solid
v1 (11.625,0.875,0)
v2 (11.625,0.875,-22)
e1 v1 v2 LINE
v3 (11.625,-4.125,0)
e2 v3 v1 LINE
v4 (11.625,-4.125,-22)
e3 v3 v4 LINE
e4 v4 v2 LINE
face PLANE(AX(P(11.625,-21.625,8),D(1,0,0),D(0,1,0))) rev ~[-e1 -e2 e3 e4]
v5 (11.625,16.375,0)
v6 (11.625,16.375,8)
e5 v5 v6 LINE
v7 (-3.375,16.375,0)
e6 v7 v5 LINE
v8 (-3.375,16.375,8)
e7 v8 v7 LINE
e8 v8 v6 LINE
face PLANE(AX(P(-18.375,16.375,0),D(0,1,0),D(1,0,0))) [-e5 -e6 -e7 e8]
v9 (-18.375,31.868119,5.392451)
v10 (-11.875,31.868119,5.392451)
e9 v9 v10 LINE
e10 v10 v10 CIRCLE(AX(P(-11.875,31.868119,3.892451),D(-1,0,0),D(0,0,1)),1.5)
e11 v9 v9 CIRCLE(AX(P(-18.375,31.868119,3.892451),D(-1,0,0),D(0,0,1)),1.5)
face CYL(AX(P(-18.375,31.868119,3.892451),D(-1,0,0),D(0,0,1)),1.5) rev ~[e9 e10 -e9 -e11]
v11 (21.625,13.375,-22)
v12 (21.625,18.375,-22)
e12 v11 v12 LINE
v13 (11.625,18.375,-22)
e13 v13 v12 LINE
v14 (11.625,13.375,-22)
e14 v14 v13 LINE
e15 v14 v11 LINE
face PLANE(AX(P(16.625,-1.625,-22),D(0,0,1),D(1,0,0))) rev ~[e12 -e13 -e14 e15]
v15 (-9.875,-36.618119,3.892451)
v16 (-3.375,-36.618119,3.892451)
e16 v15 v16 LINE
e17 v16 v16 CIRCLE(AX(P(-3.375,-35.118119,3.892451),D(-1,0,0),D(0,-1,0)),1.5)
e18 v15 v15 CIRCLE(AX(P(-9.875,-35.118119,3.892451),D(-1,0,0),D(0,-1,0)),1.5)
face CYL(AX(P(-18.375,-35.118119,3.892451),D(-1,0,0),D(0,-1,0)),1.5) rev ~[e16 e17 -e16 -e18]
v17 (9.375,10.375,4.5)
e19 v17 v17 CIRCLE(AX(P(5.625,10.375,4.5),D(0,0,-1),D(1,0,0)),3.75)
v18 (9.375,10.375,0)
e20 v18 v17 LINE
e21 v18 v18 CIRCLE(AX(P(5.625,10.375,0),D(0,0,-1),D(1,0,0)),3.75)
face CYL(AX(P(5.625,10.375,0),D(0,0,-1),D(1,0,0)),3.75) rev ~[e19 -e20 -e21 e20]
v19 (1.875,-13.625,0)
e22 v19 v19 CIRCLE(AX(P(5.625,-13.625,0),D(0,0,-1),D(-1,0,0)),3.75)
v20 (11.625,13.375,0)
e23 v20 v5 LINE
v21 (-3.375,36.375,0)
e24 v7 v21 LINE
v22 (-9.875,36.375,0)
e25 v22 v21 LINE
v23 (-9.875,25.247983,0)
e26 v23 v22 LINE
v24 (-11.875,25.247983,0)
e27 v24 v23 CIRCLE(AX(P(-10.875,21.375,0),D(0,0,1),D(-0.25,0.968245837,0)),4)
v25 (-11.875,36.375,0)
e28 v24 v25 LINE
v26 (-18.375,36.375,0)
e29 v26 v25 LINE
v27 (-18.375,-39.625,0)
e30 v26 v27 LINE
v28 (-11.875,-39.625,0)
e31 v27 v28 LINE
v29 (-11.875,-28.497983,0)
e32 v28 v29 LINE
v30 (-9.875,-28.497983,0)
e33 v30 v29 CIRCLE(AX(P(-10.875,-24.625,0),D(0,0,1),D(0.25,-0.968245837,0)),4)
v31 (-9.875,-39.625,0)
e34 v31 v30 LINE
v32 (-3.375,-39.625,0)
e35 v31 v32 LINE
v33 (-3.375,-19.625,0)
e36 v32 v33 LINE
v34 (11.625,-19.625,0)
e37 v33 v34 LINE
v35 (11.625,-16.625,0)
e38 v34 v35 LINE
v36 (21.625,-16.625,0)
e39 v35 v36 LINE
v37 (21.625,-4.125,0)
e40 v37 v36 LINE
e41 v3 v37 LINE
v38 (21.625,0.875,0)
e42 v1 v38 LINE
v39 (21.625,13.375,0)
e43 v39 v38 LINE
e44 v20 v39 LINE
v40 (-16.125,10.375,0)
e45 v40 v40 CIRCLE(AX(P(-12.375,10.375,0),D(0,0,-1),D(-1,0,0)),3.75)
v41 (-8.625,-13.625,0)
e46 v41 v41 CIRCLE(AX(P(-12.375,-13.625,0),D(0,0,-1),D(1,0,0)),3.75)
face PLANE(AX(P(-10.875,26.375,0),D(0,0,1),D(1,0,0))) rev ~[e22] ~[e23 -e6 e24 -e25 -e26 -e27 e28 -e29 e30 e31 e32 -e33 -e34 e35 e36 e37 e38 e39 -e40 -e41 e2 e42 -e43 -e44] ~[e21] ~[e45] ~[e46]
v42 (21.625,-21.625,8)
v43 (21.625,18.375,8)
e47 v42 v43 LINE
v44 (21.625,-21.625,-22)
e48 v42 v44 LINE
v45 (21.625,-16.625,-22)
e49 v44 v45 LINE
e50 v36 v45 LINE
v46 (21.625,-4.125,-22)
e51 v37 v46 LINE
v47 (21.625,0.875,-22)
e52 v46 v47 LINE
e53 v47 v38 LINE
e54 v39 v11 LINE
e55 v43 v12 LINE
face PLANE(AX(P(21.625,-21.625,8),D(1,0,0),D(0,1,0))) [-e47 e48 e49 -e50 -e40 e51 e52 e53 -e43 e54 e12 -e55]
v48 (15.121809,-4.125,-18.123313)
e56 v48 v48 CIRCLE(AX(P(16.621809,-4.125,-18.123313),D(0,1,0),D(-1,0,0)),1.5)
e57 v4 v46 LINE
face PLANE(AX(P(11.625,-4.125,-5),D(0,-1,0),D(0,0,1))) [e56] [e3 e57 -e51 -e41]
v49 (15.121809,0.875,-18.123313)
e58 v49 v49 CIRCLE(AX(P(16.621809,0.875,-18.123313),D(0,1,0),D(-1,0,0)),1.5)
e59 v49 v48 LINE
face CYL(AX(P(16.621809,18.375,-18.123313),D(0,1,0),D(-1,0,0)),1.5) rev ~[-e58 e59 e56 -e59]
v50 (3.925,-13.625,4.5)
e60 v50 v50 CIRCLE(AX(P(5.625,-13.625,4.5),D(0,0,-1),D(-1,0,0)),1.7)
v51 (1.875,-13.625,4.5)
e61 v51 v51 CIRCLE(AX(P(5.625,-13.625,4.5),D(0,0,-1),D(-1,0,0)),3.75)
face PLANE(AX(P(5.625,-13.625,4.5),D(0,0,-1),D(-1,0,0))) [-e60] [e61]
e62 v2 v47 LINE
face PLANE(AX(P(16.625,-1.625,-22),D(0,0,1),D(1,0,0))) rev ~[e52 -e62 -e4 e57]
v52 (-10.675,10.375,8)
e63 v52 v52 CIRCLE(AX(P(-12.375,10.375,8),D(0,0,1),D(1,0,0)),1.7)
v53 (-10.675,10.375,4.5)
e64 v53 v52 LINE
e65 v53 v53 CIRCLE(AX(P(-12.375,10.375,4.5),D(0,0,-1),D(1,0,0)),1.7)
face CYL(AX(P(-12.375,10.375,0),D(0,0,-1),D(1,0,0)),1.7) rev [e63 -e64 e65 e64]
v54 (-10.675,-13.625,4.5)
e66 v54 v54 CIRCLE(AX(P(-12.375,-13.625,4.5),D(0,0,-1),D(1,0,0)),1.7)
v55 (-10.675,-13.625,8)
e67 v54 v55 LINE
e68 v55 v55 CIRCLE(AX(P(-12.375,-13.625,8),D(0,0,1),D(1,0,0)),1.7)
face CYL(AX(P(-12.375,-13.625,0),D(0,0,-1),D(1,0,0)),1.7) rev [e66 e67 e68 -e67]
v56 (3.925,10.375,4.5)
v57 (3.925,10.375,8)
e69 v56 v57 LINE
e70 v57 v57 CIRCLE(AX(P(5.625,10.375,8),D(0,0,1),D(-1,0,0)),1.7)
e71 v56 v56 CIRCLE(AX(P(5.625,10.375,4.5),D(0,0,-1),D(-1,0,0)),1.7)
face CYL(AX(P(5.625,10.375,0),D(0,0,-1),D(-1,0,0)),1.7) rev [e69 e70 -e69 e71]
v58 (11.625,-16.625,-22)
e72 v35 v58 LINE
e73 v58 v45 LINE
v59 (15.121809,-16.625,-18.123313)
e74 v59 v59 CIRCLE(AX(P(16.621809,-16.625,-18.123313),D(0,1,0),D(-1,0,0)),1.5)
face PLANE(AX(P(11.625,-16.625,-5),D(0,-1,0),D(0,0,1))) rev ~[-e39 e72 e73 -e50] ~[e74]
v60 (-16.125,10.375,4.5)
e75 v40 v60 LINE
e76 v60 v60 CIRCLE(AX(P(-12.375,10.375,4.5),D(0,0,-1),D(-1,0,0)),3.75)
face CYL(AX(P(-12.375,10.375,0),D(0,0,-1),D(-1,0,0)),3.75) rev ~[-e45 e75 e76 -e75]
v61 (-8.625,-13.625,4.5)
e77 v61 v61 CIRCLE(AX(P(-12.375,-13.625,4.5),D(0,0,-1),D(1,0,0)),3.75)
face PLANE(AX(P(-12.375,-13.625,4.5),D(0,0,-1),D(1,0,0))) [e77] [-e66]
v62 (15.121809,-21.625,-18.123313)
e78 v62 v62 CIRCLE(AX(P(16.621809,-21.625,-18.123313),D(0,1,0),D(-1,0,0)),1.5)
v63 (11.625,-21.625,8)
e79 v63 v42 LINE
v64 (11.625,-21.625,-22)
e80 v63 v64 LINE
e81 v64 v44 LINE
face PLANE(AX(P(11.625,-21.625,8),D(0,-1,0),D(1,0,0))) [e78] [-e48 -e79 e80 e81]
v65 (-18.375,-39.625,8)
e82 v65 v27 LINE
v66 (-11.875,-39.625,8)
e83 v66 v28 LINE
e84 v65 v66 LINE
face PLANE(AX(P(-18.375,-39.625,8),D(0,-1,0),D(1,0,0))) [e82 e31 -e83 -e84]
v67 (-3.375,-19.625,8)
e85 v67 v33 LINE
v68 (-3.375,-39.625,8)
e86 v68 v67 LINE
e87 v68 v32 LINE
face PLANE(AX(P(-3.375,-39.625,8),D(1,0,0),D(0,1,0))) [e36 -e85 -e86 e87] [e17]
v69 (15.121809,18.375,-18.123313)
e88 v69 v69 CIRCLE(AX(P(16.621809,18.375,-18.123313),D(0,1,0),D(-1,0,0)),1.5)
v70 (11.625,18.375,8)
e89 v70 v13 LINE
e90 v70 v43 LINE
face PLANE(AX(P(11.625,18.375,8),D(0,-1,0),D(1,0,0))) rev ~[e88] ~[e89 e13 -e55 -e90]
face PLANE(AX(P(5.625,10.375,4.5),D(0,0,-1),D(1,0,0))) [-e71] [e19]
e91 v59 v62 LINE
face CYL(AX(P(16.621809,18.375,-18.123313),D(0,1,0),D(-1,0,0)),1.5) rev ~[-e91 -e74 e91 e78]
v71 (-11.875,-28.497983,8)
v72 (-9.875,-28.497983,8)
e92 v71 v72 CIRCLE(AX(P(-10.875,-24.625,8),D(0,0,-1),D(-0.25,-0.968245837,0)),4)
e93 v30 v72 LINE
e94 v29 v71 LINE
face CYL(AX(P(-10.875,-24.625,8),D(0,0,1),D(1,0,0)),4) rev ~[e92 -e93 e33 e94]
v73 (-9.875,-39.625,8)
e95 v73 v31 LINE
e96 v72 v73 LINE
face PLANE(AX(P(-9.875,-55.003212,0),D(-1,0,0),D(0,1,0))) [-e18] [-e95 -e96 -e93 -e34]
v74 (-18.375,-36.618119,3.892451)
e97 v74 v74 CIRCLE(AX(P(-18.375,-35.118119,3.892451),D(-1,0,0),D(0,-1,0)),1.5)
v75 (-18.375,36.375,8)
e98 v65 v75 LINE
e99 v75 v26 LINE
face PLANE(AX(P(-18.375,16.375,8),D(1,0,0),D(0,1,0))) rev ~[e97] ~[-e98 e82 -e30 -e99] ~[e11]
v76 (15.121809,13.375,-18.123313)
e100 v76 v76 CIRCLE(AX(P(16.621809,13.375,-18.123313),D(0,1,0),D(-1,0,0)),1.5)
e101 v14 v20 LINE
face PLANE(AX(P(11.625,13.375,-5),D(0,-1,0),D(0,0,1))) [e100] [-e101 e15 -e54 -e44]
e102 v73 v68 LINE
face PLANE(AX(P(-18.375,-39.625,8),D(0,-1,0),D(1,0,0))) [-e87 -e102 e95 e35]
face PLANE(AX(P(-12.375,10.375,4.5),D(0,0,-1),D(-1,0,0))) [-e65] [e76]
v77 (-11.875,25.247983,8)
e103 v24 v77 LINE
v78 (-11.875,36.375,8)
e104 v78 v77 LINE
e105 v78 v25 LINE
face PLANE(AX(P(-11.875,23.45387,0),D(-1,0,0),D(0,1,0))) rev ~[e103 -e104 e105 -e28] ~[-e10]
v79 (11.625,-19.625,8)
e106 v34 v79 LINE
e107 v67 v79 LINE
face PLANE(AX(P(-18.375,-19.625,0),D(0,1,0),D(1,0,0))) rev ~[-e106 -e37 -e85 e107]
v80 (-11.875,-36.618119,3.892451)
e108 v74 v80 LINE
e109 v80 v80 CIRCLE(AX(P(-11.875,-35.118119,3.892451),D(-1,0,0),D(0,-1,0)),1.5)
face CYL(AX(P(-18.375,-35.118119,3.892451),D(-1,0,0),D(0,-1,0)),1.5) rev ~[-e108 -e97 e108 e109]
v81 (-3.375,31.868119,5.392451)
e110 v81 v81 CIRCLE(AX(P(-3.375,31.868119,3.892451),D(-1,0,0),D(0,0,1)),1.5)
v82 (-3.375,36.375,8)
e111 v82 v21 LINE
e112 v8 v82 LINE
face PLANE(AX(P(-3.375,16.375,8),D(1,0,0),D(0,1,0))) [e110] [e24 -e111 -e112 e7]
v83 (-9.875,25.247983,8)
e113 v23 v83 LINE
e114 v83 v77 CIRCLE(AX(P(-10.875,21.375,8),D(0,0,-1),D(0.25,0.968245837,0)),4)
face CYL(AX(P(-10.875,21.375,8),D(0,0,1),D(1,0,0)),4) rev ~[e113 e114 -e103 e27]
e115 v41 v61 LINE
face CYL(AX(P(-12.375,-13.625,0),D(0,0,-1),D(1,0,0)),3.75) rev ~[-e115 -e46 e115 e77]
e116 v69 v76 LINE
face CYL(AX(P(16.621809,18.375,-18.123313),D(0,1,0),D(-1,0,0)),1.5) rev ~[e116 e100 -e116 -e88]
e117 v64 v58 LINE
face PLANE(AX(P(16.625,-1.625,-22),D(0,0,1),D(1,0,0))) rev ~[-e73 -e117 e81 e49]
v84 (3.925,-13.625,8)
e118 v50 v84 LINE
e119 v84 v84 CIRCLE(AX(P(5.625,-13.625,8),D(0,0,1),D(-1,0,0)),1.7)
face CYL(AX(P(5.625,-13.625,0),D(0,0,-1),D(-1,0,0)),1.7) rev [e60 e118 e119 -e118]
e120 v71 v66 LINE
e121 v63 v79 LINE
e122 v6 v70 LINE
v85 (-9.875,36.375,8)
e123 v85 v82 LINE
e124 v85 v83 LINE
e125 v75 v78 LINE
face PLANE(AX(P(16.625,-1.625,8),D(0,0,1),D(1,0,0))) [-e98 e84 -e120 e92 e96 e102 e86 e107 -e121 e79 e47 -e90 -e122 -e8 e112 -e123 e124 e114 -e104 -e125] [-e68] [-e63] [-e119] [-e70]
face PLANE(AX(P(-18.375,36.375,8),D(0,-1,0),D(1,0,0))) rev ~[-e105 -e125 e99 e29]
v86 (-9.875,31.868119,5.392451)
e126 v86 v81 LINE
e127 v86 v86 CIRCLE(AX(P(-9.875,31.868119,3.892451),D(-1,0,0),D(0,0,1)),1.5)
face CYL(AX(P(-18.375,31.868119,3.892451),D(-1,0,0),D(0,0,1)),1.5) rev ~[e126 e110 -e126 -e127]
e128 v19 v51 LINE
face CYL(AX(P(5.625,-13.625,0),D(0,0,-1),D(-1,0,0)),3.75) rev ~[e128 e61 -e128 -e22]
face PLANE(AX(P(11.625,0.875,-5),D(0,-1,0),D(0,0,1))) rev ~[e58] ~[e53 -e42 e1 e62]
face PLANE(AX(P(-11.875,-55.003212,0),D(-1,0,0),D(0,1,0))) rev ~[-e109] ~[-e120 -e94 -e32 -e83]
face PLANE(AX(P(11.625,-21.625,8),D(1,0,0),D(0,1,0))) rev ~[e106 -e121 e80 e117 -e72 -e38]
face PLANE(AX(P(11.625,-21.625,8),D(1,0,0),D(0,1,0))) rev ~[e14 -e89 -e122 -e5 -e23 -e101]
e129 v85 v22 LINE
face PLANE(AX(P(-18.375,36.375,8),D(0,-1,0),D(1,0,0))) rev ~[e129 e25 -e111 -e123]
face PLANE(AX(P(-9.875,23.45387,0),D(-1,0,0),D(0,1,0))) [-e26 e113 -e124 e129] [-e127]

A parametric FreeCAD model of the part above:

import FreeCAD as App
import Part
import Sketcher

doc = App.newDocument("Part")
body = doc.addObject("PartDesign::Body", "Body")

# Sketch on XY plane
sketch1 = doc.addObject("Sketcher::SketchObject", "Sketch")
body.addObject(sketch1)
sketch1.AttachmentSupport = (doc.XY_Plane, [""])
sketch1.MapMode = "FlatFace"
sketch1.addGeometry(Part.LineSegment(App.Vector(-18.4, 16.4, 0), App.Vector(-18.4, -19.6, 0)), False)
sketch1.addGeometry(Part.LineSegment(App.Vector(-18.4, -19.6, 0), App.Vector(11.6, -19.6, 0)), False)
sketch1.addGeometry(Part.LineSegment(App.Vector(11.6, -19.6, 0), App.Vector(11.6, 16.4, 0)), False)
sketch1.addGeometry(Part.LineSegment(App.Vector(11.6, 16.4, 0), App.Vector(-18.4, 16.4, 0)), False)
sketch1.addGeometry(Part.Circle(App.Vector(-12.4, -13.6, 0), App.Vector(0, 0, 1), 1.7), False)
sketch1.addGeometry(Part.Circle(App.Vector(5.6, -13.6, 0), App.Vector(0, 0, 1), 1.7), False)
sketch1.addGeometry(Part.Circle(App.Vector(-12.4, 10.4, 0), App.Vector(0, 0, 1), 1.7), False)
sketch1.addGeometry(Part.Circle(App.Vector(5.6, 10.4, 0), App.Vector(0, 0, 1), 1.7), False)
sketch1.addConstraint(Sketcher.Constraint("Coincident", 0, 2, 1, 1))
sketch1.addConstraint(Sketcher.Constraint("Coincident", 1, 2, 2, 1))
sketch1.addConstraint(Sketcher.Constraint("Coincident", 2, 2, 3, 1))
sketch1.addConstraint(Sketcher.Constraint("Coincident", 3, 2, 0, 1))
sketch1.addConstraint(Sketcher.Constraint("Vertical", 0))
sketch1.addConstraint(Sketcher.Constraint("Horizontal", 1))
sketch1.addConstraint(Sketcher.Constraint("Vertical", 2))
sketch1.addConstraint(Sketcher.Constraint("Horizontal", 3))
sketch1.addConstraint(Sketcher.Constraint("Equal", 4, 5))
sketch1.addConstraint(Sketcher.Constraint("Equal", 5, 6))
sketch1.addConstraint(Sketcher.Constraint("Equal", 6, 7))
sketch1.addConstraint(Sketcher.Constraint("Horizontal", 4, 3, 5, 3))
sketch1.addConstraint(Sketcher.Constraint("Horizontal", 6, 3, 7, 3))
sketch1.addConstraint(Sketcher.Constraint("Vertical", 4, 3, 6, 3))
sketch1.addConstraint(Sketcher.Constraint("Vertical", 5, 3, 7, 3))
sketch1.addConstraint(Sketcher.Constraint("Diameter", 4, 3.4))
sketch1.addConstraint(Sketcher.Constraint("DistanceX", 1, 1, 1, 2, 30.0))
sketch1.addConstraint(Sketcher.Constraint("DistanceY", 0, 2, 0, 1, 36.0))
sketch1.addConstraint(Sketcher.Constraint("DistanceX", 4, 3, 5, 3, 18.0))
sketch1.addConstraint(Sketcher.Constraint("DistanceY", 4, 3, 6, 3, 24.0))
sketch1.addConstraint(Sketcher.Constraint("DistanceX", 0, 2, 4, 3, 6.0))
sketch1.addConstraint(Sketcher.Constraint("DistanceY", 0, 2, 4, 3, 6.0))
sketch1.addConstraint(Sketcher.Constraint("DistanceX", 4, 3, -1, 1, 12.375))
sketch1.addConstraint(Sketcher.Constraint("DistanceY", 4, 3, -1, 1, 13.625))
pad1 = doc.addObject("PartDesign::Pad", "Pad")
body.addObject(pad1)
pad1.Profile = sketch1
pad1.Length = 8

# Sketch on XY plane
sketch2 = doc.addObject("Sketcher::SketchObject", "Sketch001")
body.addObject(sketch2)
sketch2.AttachmentSupport = (doc.XY_Plane, [""])
sketch2.MapMode = "FlatFace"
sketch2.addGeometry(Part.Circle(App.Vector(-12.4, 10.4, 0), App.Vector(0, 0, 1), 3.8), False)
sketch2.addGeometry(Part.Circle(App.Vector(5.6, 10.4, 0), App.Vector(0, 0, 1), 3.8), False)
sketch2.addGeometry(Part.Circle(App.Vector(-12.4, -13.6, 0), App.Vector(0, 0, 1), 3.8), False)
sketch2.addGeometry(Part.Circle(App.Vector(5.6, -13.6, 0), App.Vector(0, 0, 1), 3.8), False)
sketch2.addConstraint(Sketcher.Constraint("Equal", 0, 1))
sketch2.addConstraint(Sketcher.Constraint("Equal", 1, 2))
sketch2.addConstraint(Sketcher.Constraint("Equal", 2, 3))
sketch2.addConstraint(Sketcher.Constraint("Horizontal", 0, 3, 1, 3))
sketch2.addConstraint(Sketcher.Constraint("Horizontal", 2, 3, 3, 3))
sketch2.addConstraint(Sketcher.Constraint("Vertical", 0, 3, 2, 3))
sketch2.addConstraint(Sketcher.Constraint("Vertical", 1, 3, 3, 3))
sketch2.addConstraint(Sketcher.Constraint("Diameter", 0, 7.5))
sketch2.addConstraint(Sketcher.Constraint("DistanceX", 0, 3, 1, 3, 18.0))
sketch2.addConstraint(Sketcher.Constraint("DistanceY", 2, 3, 0, 3, 24.0))
sketch2.addConstraint(Sketcher.Constraint("DistanceX", 0, 3, -1, 1, 12.375))
sketch2.addConstraint(Sketcher.Constraint("DistanceY", -1, 1, 0, 3, 10.375))
pocket1 = doc.addObject("PartDesign::Pocket", "Pocket")
body.addObject(pocket1)
pocket1.Profile = sketch2
pocket1.Length = 4.5
pocket1.Reversed = True

# Sketch on XY plane
sketch3 = doc.addObject("Sketcher::SketchObject", "Sketch002")
body.addObject(sketch3)
sketch3.AttachmentSupport = (doc.XY_Plane, [""])
sketch3.MapMode = "FlatFace"
sketch3.AttachmentOffset = App.Placement(App.Vector(0, 0, 8), App.Rotation())
sketch3.addGeometry(Part.LineSegment(App.Vector(-18.4, 36.4, 0), App.Vector(-18.4, 16.4, 0)), False)
sketch3.addGeometry(Part.LineSegment(App.Vector(-18.4, 16.4, 0), App.Vector(-3.4, 16.4, 0)), False)
sketch3.addGeometry(Part.LineSegment(App.Vector(-3.4, 16.4, 0), App.Vector(-3.4, 36.4, 0)), False)
sketch3.addGeometry(Part.LineSegment(App.Vector(-3.4, 36.4, 0), App.Vector(-18.4, 36.4, 0)), False)
sketch3.addGeometry(Part.Circle(App.Vector(-10.9, 21.4, 0), App.Vector(0, 0, 1), 4), False)
sketch3.addGeometry(Part.LineSegment(App.Vector(-18.4, -19.6, 0), App.Vector(-18.4, -39.6, 0)), False)
sketch3.addGeometry(Part.LineSegment(App.Vector(-18.4, -39.6, 0), App.Vector(-3.4, -39.6, 0)), False)
sketch3.addGeometry(Part.LineSegment(App.Vector(-3.4, -39.6, 0), App.Vector(-3.4, -19.6, 0)), False)
sketch3.addGeometry(Part.LineSegment(App.Vector(-3.4, -19.6, 0), App.Vector(-18.4, -19.6, 0)), False)
sketch3.addGeometry(Part.Circle(App.Vector(-10.9, -24.6, 0), App.Vector(0, 0, 1), 4), False)
sketch3.addConstraint(Sketcher.Constraint("Coincident", 0, 2, 1, 1))
sketch3.addConstraint(Sketcher.Constraint("Coincident", 1, 2, 2, 1))
sketch3.addConstraint(Sketcher.Constraint("Coincident", 2, 2, 3, 1))
sketch3.addConstraint(Sketcher.Constraint("Coincident", 3, 2, 0, 1))
sketch3.addConstraint(Sketcher.Constraint("Coincident", 5, 2, 6, 1))
sketch3.addConstraint(Sketcher.Constraint("Coincident", 6, 2, 7, 1))
sketch3.addConstraint(Sketcher.Constraint("Coincident", 7, 2, 8, 1))
sketch3.addConstraint(Sketcher.Constraint("Coincident", 8, 2, 5, 1))
sketch3.addConstraint(Sketcher.Constraint("Vertical", 0))
sketch3.addConstraint(Sketcher.Constraint("Horizontal", 1))
sketch3.addConstraint(Sketcher.Constraint("Vertical", 2))
sketch3.addConstraint(Sketcher.Constraint("Horizontal", 3))
sketch3.addConstraint(Sketcher.Constraint("Vertical", 5))
sketch3.addConstraint(Sketcher.Constraint("Horizontal", 6))
sketch3.addConstraint(Sketcher.Constraint("Vertical", 7))
sketch3.addConstraint(Sketcher.Constraint("Horizontal", 8))
sketch3.addConstraint(Sketcher.Constraint("Equal", 4, 9))
sketch3.addConstraint(Sketcher.Constraint("Vertical", 4, 3, 9, 3))
sketch3.addConstraint(Sketcher.Constraint("Vertical", 3, 2, 5, 2))
sketch3.addConstraint(Sketcher.Constraint("Vertical", 2, 2, 6, 2))
sketch3.addConstraint(Sketcher.Constraint("Equal", 2, 5))
sketch3.addConstraint(Sketcher.Constraint("Diameter", 4, 8.0))
sketch3.addConstraint(Sketcher.Constraint("DistanceX", 1, 1, 1, 2, 15.0))
sketch3.addConstraint(Sketcher.Constraint("DistanceY", 0, 2, 0, 1, 20.0))
sketch3.addConstraint(Sketcher.Constraint("DistanceY", 9, 3, 4, 3, 46.0))
sketch3.addConstraint(Sketcher.Constraint("DistanceY", 0, 2, 4, 3, 5.0))
sketch3.addConstraint(Sketcher.Constraint("DistanceY", 5, 2, 9, 3, 15.0))
sketch3.addConstraint(Sketcher.Constraint("DistanceX", 0, 2, 4, 3, 7.5))
sketch3.addConstraint(Sketcher.Constraint("DistanceX", 4, 3, -1, 1, 10.875))
sketch3.addConstraint(Sketcher.Constraint("DistanceY", -1, 1, 4, 3, 21.375))
pad2 = doc.addObject("PartDesign::Pad", "Pad001")
body.addObject(pad2)
pad2.Profile = sketch3
pad2.Length = 8
pad2.Reversed = True

# Sketch on XY plane
sketch4 = doc.addObject("Sketcher::SketchObject", "Sketch003")
body.addObject(sketch4)
sketch4.AttachmentSupport = (doc.XY_Plane, [""])
sketch4.MapMode = "FlatFace"
sketch4.AttachmentOffset = App.Placement(App.Vector(0, 0, 8), App.Rotation())
sketch4.addGeometry(Part.LineSegment(App.Vector(12, 18, 0), App.Vector(12, -22, 0)), False)
sketch4.addGeometry(Part.LineSegment(App.Vector(12, -22, 0), App.Vector(22, -22, 0)), False)
sketch4.addGeometry(Part.LineSegment(App.Vector(22, -22, 0), App.Vector(22, 18, 0)), False)
sketch4.addGeometry(Part.LineSegment(App.Vector(22, 18, 0), App.Vector(12, 18, 0)), False)
sketch4.addConstraint(Sketcher.Constraint("Coincident", 0, 2, 1, 1))
sketch4.addConstraint(Sketcher.Constraint("Coincident", 1, 2, 2, 1))
sketch4.addConstraint(Sketcher.Constraint("Coincident", 2, 2, 3, 1))
sketch4.addConstraint(Sketcher.Constraint("Coincident", 3, 2, 0, 1))
sketch4.addConstraint(Sketcher.Constraint("Vertical", 0))
sketch4.addConstraint(Sketcher.Constraint("Horizontal", 1))
sketch4.addConstraint(Sketcher.Constraint("Vertical", 2))
sketch4.addConstraint(Sketcher.Constraint("Horizontal", 3))
sketch4.addConstraint(Sketcher.Constraint("DistanceX", 1, 1, 1, 2, 10.0))
sketch4.addConstraint(Sketcher.Constraint("DistanceY", 0, 2, 0, 1, 40.0))
sketch4.addConstraint(Sketcher.Constraint("DistanceX", -1, 1, 0, 2, 11.625))
sketch4.addConstraint(Sketcher.Constraint("DistanceY", 0, 2, -1, 1, 21.625))
pad3 = doc.addObject("PartDesign::Pad", "Pad002")
body.addObject(pad3)
pad3.Profile = sketch4
pad3.Length = 30
pad3.Reversed = True

# Sketch on YZ plane
sketch5 = doc.addObject("Sketcher::SketchObject", "Sketch004")
body.addObject(sketch5)
sketch5.AttachmentSupport = (doc.YZ_Plane, [""])
sketch5.MapMode = "FlatFace"
sketch5.AttachmentOffset = App.Placement(App.Vector(0, 0, 11.625), App.Rotation())
sketch5.addGeometry(Part.LineSegment(App.Vector(13, -22, 0), App.Vector(1, -22, 0)), False)
sketch5.addGeometry(Part.LineSegment(App.Vector(1, -22, 0), App.Vector(1, -10, 0)), False)
sketch5.addGeometry(Part.LineSegment(App.Vector(1, -10, 0), App.Vector(13, -10, 0)), False)
sketch5.addGeometry(Part.LineSegment(App.Vector(13, -10, 0), App.Vector(13, -22, 0)), False)
sketch5.addGeometry(Part.LineSegment(App.Vector(13, -5, 0), App.Vector(1, -5, 0)), False)
sketch5.addGeometry(Part.LineSegment(App.Vector(1, -5, 0), App.Vector(1, 0, 0)), False)
sketch5.addGeometry(Part.LineSegment(App.Vector(1, 0, 0), App.Vector(13, 0, 0)), False)
sketch5.addGeometry(Part.LineSegment(App.Vector(13, 0, 0), App.Vector(13, -5, 0)), False)
sketch5.addGeometry(Part.LineSegment(App.Vector(-4, -5, 0), App.Vector(-17, -5, 0)), False)
sketch5.addGeometry(Part.LineSegment(App.Vector(-17, -5, 0), App.Vector(-17, 0, 0)), False)
sketch5.addGeometry(Part.LineSegment(App.Vector(-17, 0, 0), App.Vector(-4, 0, 0)), False)
sketch5.addGeometry(Part.LineSegment(App.Vector(-4, 0, 0), App.Vector(-4, -5, 0)), False)
sketch5.addGeometry(Part.LineSegment(App.Vector(-4, -22, 0), App.Vector(-17, -22, 0)), False)
sketch5.addGeometry(Part.LineSegment(App.Vector(-17, -22, 0), App.Vector(-17, -10, 0)), False)
sketch5.addGeometry(Part.LineSegment(App.Vector(-17, -10, 0), App.Vector(-4, -10, 0)), False)
sketch5.addGeometry(Part.LineSegment(App.Vector(-4, -10, 0), App.Vector(-4, -22, 0)), False)
sketch5.addConstraint(Sketcher.Constraint("Coincident", 0, 2, 1, 1))
sketch5.addConstraint(Sketcher.Constraint("Coincident", 1, 2, 2, 1))
sketch5.addConstraint(Sketcher.Constraint("Coincident", 2, 2, 3, 1))
sketch5.addConstraint(Sketcher.Constraint("Coincident", 3, 2, 0, 1))
sketch5.addConstraint(Sketcher.Constraint("Coincident", 4, 2, 5, 1))
sketch5.addConstraint(Sketcher.Constraint("Coincident", 5, 2, 6, 1))
sketch5.addConstraint(Sketcher.Constraint("Coincident", 6, 2, 7, 1))
sketch5.addConstraint(Sketcher.Constraint("Coincident", 7, 2, 4, 1))
sketch5.addConstraint(Sketcher.Constraint("Coincident", 8, 2, 9, 1))
sketch5.addConstraint(Sketcher.Constraint("Coincident", 9, 2, 10, 1))
sketch5.addConstraint(Sketcher.Constraint("Coincident", 10, 2, 11, 1))
sketch5.addConstraint(Sketcher.Constraint("Coincident", 11, 2, 8, 1))
sketch5.addConstraint(Sketcher.Constraint("Coincident", 12, 2, 13, 1))
sketch5.addConstraint(Sketcher.Constraint("Coincident", 13, 2, 14, 1))
sketch5.addConstraint(Sketcher.Constraint("Coincident", 14, 2, 15, 1))
sketch5.addConstraint(Sketcher.Constraint("Coincident", 15, 2, 12, 1))
sketch5.addConstraint(Sketcher.Constraint("Horizontal", 0))
sketch5.addConstraint(Sketcher.Constraint("Vertical", 1))
sketch5.addConstraint(Sketcher.Constraint("Horizontal", 2))
sketch5.addConstraint(Sketcher.Constraint("Vertical", 3))
sketch5.addConstraint(Sketcher.Constraint("Horizontal", 4))
sketch5.addConstraint(Sketcher.Constraint("Vertical", 5))
sketch5.addConstraint(Sketcher.Constraint("Horizontal", 6))
sketch5.addConstraint(Sketcher.Constraint("Vertical", 7))
sketch5.addConstraint(Sketcher.Constraint("Horizontal", 8))
sketch5.addConstraint(Sketcher.Constraint("Vertical", 9))
sketch5.addConstraint(Sketcher.Constraint("Horizontal", 10))
sketch5.addConstraint(Sketcher.Constraint("Vertical", 11))
sketch5.addConstraint(Sketcher.Constraint("Horizontal", 12))
sketch5.addConstraint(Sketcher.Constraint("Vertical", 13))
sketch5.addConstraint(Sketcher.Constraint("Horizontal", 14))
sketch5.addConstraint(Sketcher.Constraint("Vertical", 15))
sketch5.addConstraint(Sketcher.Constraint("PointOnObject", 5, 2, -1))
sketch5.addConstraint(Sketcher.Constraint("PointOnObject", 9, 2, -1))
sketch5.addConstraint(Sketcher.Constraint("Horizontal", 7, 2, 8, 2))
sketch5.addConstraint(Sketcher.Constraint("Horizontal", 3, 2, 12, 2))
sketch5.addConstraint(Sketcher.Constraint("Horizontal", 2, 2, 13, 2))
sketch5.addConstraint(Sketcher.Constraint("Vertical", 1, 2, 4, 2))
sketch5.addConstraint(Sketcher.Constraint("Vertical", 3, 2, 6, 2))
sketch5.addConstraint(Sketcher.Constraint("Vertical", 9, 2, 12, 2))
sketch5.addConstraint(Sketcher.Constraint("Vertical", 11, 2, 14, 2))
sketch5.addConstraint(Sketcher.Constraint("Equal", 6, 8))
sketch5.addConstraint(Sketcher.Constraint("DistanceY", 1, 1, 1, 2, 12.0))
sketch5.addConstraint(Sketcher.Constraint("DistanceY", 5, 1, 5, 2, 5.0))
sketch5.addConstraint(Sketcher.Constraint("DistanceX", 0, 2, 0, 1, 12.5))
sketch5.addConstraint(Sketcher.Constraint("DistanceY", 0, 2, -1, 1, 22.0))
sketch5.addConstraint(Sketcher.Constraint("DistanceX", 8, 2, 7, 2, 30.0))
sketch5.addConstraint(Sketcher.Constraint("DistanceX", -1, 1, 0, 2, 0.875))
pocket2 = doc.addObject("PartDesign::Pocket", "Pocket001")
body.addObject(pocket2)
pocket2.Profile = sketch5
pocket2.Length = 30
pocket2.Reversed = True

# Sketch on XZ plane
sketch6 = doc.addObject("Sketcher::SketchObject", "Sketch005")
body.addObject(sketch6)
sketch6.AttachmentSupport = (doc.XZ_Plane, [""])
sketch6.MapMode = "FlatFace"
sketch6.AttachmentOffset = App.Placement(App.Vector(0, 0, -18.375), App.Rotation())
sketch6.addGeometry(Part.Circle(App.Vector(16.6, -18.1, 0), App.Vector(0, 0, 1), 1.5), False)
sketch6.addConstraint(Sketcher.Constraint("Diameter", 0, 3.0))
sketch6.addConstraint(Sketcher.Constraint("DistanceX", -1, 1, 0, 3, 16.621809))
sketch6.addConstraint(Sketcher.Constraint("DistanceY", 0, 3, -1, 1, 18.123313))
pocket3 = doc.addObject("PartDesign::Pocket", "Pocket002")
body.addObject(pocket3)
pocket3.Profile = sketch6
pocket3.Length = 47
pocket3.Reversed = True

# Sketch on XY plane
sketch7 = doc.addObject("Sketcher::SketchObject", "Sketch006")
body.addObject(sketch7)
sketch7.AttachmentSupport = (doc.XY_Plane, [""])
sketch7.MapMode = "FlatFace"
sketch7.addGeometry(Part.LineSegment(App.Vector(-9.9, 49.3, 0), App.Vector(-9.9, 23.5, 0)), False)
sketch7.addGeometry(Part.LineSegment(App.Vector(-9.9, 23.5, 0), App.Vector(-11.9, 23.5, 0)), False)
sketch7.addGeometry(Part.LineSegment(App.Vector(-11.9, 23.5, 0), App.Vector(-11.9, 49.3, 0)), False)
sketch7.addGeometry(Part.LineSegment(App.Vector(-11.9, 49.3, 0), App.Vector(-9.9, 49.3, 0)), False)
sketch7.addGeometry(Part.LineSegment(App.Vector(-9.9, -24.2, 0), App.Vector(-9.9, -55, 0)), False)
sketch7.addGeometry(Part.LineSegment(App.Vector(-9.9, -55, 0), App.Vector(-11.9, -55, 0)), False)
sketch7.addGeometry(Part.LineSegment(App.Vector(-11.9, -55, 0), App.Vector(-11.9, -24.2, 0)), False)
sketch7.addGeometry(Part.LineSegment(App.Vector(-11.9, -24.2, 0), App.Vector(-9.9, -24.2, 0)), False)
sketch7.addConstraint(Sketcher.Constraint("Coincident", 0, 2, 1, 1))
sketch7.addConstraint(Sketcher.Constraint("Coincident", 1, 2, 2, 1))
sketch7.addConstraint(Sketcher.Constraint("Coincident", 2, 2, 3, 1))
sketch7.addConstraint(Sketcher.Constraint("Coincident", 3, 2, 0, 1))
sketch7.addConstraint(Sketcher.Constraint("Coincident", 4, 2, 5, 1))
sketch7.addConstraint(Sketcher.Constraint("Coincident", 5, 2, 6, 1))
sketch7.addConstraint(Sketcher.Constraint("Coincident", 6, 2, 7, 1))
sketch7.addConstraint(Sketcher.Constraint("Coincident", 7, 2, 4, 1))
sketch7.addConstraint(Sketcher.Constraint("Vertical", 0))
sketch7.addConstraint(Sketcher.Constraint("Horizontal", 1))
sketch7.addConstraint(Sketcher.Constraint("Vertical", 2))
sketch7.addConstraint(Sketcher.Constraint("Horizontal", 3))
sketch7.addConstraint(Sketcher.Constraint("Vertical", 4))
sketch7.addConstraint(Sketcher.Constraint("Horizontal", 5))
sketch7.addConstraint(Sketcher.Constraint("Vertical", 6))
sketch7.addConstraint(Sketcher.Constraint("Horizontal", 7))
sketch7.addConstraint(Sketcher.Constraint("Vertical", 3, 2, 4, 2))
sketch7.addConstraint(Sketcher.Constraint("Vertical", 2, 2, 5, 2))
sketch7.addConstraint(Sketcher.Constraint("DistanceX", 1, 2, 1, 1, 2.0))
sketch7.addConstraint(Sketcher.Constraint("DistanceX", 0, 2, -1, 1, 9.875))
sketch7.addConstraint(Sketcher.Constraint("DistanceY", 0, 2, 0, 1, 25.842259))
sketch7.addConstraint(Sketcher.Constraint("DistanceY", 4, 2, 4, 1, 30.756424))
sketch7.addConstraint(Sketcher.Constraint("DistanceY", -1, 1, 0, 2, 23.45387))
sketch7.addConstraint(Sketcher.Constraint("DistanceY", 4, 2, 3, 2, 104.299342))
pocket4 = doc.addObject("PartDesign::Pocket", "Pocket003")
body.addObject(pocket4)
pocket4.Profile = sketch7
pocket4.Length = 10
pocket4.Reversed = True

# Sketch on YZ plane
sketch8 = doc.addObject("Sketcher::SketchObject", "Sketch007")
body.addObject(sketch8)
sketch8.AttachmentSupport = (doc.YZ_Plane, [""])
sketch8.MapMode = "FlatFace"
sketch8.AttachmentOffset = App.Placement(App.Vector(0, 0, -18.375), App.Rotation())
sketch8.addGeometry(Part.Circle(App.Vector(31.9, 3.9, 0), App.Vector(0, 0, 1), 1.5), False)
sketch8.addGeometry(Part.Circle(App.Vector(-35.1, 3.9, 0), App.Vector(0, 0, 1), 1.5), False)
sketch8.addConstraint(Sketcher.Constraint("Equal", 0, 1))
sketch8.addConstraint(Sketcher.Constraint("Horizontal", 0, 3, 1, 3))
sketch8.addConstraint(Sketcher.Constraint("Diameter", 0, 3.0))
sketch8.addConstraint(Sketcher.Constraint("DistanceX", -1, 1, 0, 3, 31.868119))
sketch8.addConstraint(Sketcher.Constraint("DistanceY", -1, 1, 0, 3, 3.892451))
sketch8.addConstraint(Sketcher.Constraint("DistanceX", 1, 3, -1, 1, 35.118119))
pocket5 = doc.addObject("PartDesign::Pocket", "Pocket004")
body.addObject(pocket5)
pocket5.Profile = sketch8
pocket5.Length = 40
pocket5.Reversed = True

# Sketch on YZ plane
sketch9 = doc.addObject("Sketcher::SketchObject", "Sketch008")
body.addObject(sketch9)
sketch9.AttachmentSupport = (doc.YZ_Plane, [""])
sketch9.MapMode = "FlatFace"
sketch9.AttachmentOffset = App.Placement(App.Vector(0, 0, 21.625), App.Rotation())
sketch9.addGeometry(Part.LineSegment(App.Vector(13, -5, 0), App.Vector(1, -5, 0)), False)
sketch9.addGeometry(Part.LineSegment(App.Vector(1, -5, 0), App.Vector(1, -10, 0)), False)
sketch9.addGeometry(Part.LineSegment(App.Vector(1, -10, 0), App.Vector(13, -10, 0)), False)
sketch9.addGeometry(Part.LineSegment(App.Vector(13, -10, 0), App.Vector(13, -5, 0)), False)
sketch9.addGeometry(Part.LineSegment(App.Vector(-4, -5, 0), App.Vector(-17, -5, 0)), False)
sketch9.addGeometry(Part.LineSegment(App.Vector(-17, -5, 0), App.Vector(-17, -10, 0)), False)
sketch9.addGeometry(Part.LineSegment(App.Vector(-17, -10, 0), App.Vector(-4, -10, 0)), False)
sketch9.addGeometry(Part.LineSegment(App.Vector(-4, -10, 0), App.Vector(-4, -5, 0)), False)
sketch9.addConstraint(Sketcher.Constraint("Coincident", 0, 2, 1, 1))
sketch9.addConstraint(Sketcher.Constraint("Coincident", 1, 2, 2, 1))
sketch9.addConstraint(Sketcher.Constraint("Coincident", 2, 2, 3, 1))
sketch9.addConstraint(Sketcher.Constraint("Coincident", 3, 2, 0, 1))
sketch9.addConstraint(Sketcher.Constraint("Coincident", 4, 2, 5, 1))
sketch9.addConstraint(Sketcher.Constraint("Coincident", 5, 2, 6, 1))
sketch9.addConstraint(Sketcher.Constraint("Coincident", 6, 2, 7, 1))
sketch9.addConstraint(Sketcher.Constraint("Coincident", 7, 2, 4, 1))
sketch9.addConstraint(Sketcher.Constraint("Horizontal", 0))
sketch9.addConstraint(Sketcher.Constraint("Vertical", 1))
sketch9.addConstraint(Sketcher.Constraint("Horizontal", 2))
sketch9.addConstraint(Sketcher.Constraint("Vertical", 3))
sketch9.addConstraint(Sketcher.Constraint("Horizontal", 4))
sketch9.addConstraint(Sketcher.Constraint("Vertical", 5))
sketch9.addConstraint(Sketcher.Constraint("Horizontal", 6))
sketch9.addConstraint(Sketcher.Constraint("Vertical", 7))
sketch9.addConstraint(Sketcher.Constraint("Horizontal", 3, 2, 4, 2))
sketch9.addConstraint(Sketcher.Constraint("Horizontal", 2, 2, 5, 2))
sketch9.addConstraint(Sketcher.Constraint("Equal", 2, 4))
sketch9.addConstraint(Sketcher.Constraint("DistanceY", 1, 2, 1, 1, 5.0))
sketch9.addConstraint(Sketcher.Constraint("DistanceX", 0, 2, 0, 1, 12.5))
sketch9.addConstraint(Sketcher.Constraint("DistanceY", 0, 2, -1, 1, 5.0))
sketch9.addConstraint(Sketcher.Constraint("DistanceX", 4, 2, 3, 2, 30.0))
sketch9.addConstraint(Sketcher.Constraint("DistanceX", -1, 1, 0, 2, 0.875))
pocket6 = doc.addObject("PartDesign::Pocket", "Pocket005")
body.addObject(pocket6)
pocket6.Profile = sketch9
pocket6.Length = 10

doc.recompute()
